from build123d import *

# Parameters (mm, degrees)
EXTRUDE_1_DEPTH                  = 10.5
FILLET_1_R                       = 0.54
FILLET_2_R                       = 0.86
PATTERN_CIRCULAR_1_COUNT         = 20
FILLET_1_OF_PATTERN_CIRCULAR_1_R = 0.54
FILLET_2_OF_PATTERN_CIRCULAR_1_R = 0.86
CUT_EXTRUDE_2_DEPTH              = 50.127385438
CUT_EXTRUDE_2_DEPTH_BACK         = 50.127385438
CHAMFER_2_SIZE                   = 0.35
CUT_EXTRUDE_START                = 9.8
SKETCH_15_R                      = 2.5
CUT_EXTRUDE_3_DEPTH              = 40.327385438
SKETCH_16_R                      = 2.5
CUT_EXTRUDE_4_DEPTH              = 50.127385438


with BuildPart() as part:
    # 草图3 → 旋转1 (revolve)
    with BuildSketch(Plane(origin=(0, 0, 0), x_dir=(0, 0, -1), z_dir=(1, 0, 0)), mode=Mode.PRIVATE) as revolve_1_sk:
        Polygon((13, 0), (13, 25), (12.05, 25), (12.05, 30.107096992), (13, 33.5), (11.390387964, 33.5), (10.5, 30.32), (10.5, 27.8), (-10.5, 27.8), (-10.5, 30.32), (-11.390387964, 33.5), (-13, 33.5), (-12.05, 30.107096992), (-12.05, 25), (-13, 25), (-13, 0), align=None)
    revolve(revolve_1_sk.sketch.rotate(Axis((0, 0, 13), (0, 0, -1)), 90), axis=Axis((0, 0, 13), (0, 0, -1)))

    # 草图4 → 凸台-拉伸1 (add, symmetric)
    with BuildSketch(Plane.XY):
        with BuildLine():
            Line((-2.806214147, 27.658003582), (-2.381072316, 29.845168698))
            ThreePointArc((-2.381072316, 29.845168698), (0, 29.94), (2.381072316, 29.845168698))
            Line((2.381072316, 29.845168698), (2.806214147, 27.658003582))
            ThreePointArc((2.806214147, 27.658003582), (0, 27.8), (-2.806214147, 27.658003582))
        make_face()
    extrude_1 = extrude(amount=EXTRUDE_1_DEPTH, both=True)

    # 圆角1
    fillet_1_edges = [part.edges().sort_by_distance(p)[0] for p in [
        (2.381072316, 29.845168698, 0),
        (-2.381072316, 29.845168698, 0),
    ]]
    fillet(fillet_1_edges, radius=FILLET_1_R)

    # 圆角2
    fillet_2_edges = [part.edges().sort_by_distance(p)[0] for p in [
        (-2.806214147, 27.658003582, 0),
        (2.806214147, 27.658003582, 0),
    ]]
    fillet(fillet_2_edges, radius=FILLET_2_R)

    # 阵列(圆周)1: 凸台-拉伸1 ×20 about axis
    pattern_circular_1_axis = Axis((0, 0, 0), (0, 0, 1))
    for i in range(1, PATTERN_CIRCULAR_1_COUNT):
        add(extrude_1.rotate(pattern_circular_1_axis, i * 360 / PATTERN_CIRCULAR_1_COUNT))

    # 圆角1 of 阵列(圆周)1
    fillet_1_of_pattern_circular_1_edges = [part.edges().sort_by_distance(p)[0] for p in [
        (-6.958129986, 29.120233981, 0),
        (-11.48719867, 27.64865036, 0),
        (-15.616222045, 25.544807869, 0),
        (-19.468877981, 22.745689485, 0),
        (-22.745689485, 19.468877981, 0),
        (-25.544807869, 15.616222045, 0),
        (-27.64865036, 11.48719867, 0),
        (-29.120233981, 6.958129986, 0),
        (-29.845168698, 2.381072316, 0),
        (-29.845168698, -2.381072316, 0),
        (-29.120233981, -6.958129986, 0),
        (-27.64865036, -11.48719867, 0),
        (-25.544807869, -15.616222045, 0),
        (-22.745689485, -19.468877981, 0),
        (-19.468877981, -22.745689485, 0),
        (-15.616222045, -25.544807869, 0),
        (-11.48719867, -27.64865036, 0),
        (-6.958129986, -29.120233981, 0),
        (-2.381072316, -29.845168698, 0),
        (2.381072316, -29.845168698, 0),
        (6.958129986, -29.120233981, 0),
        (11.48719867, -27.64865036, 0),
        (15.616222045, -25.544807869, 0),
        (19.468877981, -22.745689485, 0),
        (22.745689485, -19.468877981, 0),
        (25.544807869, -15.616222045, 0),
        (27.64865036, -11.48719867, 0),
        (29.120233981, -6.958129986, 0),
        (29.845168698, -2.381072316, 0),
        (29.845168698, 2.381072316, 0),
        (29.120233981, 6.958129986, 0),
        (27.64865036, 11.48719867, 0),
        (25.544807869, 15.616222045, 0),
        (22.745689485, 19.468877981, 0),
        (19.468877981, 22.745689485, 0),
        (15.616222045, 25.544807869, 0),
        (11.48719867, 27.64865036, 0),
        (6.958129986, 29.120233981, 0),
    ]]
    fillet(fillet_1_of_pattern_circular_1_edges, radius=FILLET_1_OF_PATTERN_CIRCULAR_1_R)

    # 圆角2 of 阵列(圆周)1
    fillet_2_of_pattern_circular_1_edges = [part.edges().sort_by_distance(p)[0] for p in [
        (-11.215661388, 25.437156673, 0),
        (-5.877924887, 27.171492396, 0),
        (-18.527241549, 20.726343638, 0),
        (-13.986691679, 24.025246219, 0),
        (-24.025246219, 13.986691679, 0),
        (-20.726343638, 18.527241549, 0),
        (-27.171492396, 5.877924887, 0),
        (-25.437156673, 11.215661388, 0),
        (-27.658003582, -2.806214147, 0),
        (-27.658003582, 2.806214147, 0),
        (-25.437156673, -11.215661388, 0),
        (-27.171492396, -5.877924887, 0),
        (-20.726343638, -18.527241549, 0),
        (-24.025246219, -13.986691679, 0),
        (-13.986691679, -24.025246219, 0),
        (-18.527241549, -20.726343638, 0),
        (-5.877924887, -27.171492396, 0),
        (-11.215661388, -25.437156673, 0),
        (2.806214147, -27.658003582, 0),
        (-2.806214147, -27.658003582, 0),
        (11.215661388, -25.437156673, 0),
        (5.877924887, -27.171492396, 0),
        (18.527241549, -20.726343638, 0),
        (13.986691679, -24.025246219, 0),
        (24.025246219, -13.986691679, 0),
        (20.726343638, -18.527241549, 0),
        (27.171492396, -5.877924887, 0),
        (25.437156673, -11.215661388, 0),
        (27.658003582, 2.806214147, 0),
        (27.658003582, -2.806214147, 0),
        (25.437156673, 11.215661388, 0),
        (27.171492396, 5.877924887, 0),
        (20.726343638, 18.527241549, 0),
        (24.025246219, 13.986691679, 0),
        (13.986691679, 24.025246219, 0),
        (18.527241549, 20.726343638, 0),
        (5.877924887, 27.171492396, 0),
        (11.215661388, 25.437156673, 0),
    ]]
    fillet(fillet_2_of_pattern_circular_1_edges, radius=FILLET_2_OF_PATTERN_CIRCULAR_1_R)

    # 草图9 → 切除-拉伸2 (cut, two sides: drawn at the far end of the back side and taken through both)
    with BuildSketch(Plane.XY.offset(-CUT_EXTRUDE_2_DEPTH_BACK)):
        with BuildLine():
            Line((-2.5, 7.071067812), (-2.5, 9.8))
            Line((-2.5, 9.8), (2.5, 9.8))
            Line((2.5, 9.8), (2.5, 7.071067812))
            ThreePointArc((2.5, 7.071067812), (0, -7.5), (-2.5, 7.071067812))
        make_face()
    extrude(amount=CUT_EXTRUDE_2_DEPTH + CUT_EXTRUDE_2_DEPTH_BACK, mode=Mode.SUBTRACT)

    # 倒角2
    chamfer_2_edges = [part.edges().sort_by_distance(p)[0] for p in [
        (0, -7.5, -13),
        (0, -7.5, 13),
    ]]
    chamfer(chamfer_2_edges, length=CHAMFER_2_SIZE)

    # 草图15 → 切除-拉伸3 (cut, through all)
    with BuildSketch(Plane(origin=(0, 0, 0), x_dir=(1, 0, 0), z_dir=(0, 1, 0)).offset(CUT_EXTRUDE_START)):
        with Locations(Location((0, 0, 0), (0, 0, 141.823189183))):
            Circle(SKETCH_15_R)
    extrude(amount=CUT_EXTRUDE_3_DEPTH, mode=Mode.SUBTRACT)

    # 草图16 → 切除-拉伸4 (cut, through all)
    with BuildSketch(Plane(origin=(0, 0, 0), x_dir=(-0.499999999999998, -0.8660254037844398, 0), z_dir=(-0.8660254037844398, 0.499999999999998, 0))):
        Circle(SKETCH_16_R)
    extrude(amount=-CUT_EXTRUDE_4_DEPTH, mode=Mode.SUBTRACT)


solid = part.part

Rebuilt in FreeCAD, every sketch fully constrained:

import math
import FreeCAD as App
import Part
import Sketcher
Q = App.Units.Quantity


def edges_at(feature, points):
    """Names of the edges that pass closest to the given points."""
    edges = feature.Shape.Edges
    near = lambda p: min(range(len(edges)), key=lambda i: edges[i].distToShape(Part.Vertex(*p))[0])
    return sorted({f"Edge{near(p) + 1}" for p in points})


def add_polygon(sketch, points):
    """Adds a closed chain of lines whose ends are joined by coincident constraints."""
    first, n = sketch.GeometryCount, len(points)
    for a, b in zip(points, points[1:] + points[:1]):
        sketch.addGeometry(Part.LineSegment(App.Vector(*a, 0), App.Vector(*b, 0)), False)
    for i in range(n):
        sketch.addConstraint(Sketcher.Constraint("Coincident", first + i, 2, first + (i + 1) % n, 1))

doc = App.newDocument("Part")
body = doc.addObject("PartDesign::Body", "Body")

# Sketch on YZ plane
sketch1 = body.newObject("Sketcher::SketchObject", "Sketch")
sketch1.AttachmentSupport = (doc.getObject("YZ_Plane"), [""])
sketch1.MapMode = "FlatFace"
add_polygon(sketch1, [(0, -13), (25, -13), (25, -12.1), (30.1, -12.1), (33.5, -13), (33.5, -11.4), (30.3, -10.5), (27.8, -10.5), (27.8, 10.5), (30.3, 10.5), (33.5, 11.4), (33.5, 13), (30.1, 12.1), (25, 12.1), (25, 13), (0, 13)])  # lines 0-15
sketch1.addConstraint([
    Sketcher.Constraint("Horizontal", 0),
    Sketcher.Constraint("Vertical", 1),
    Sketcher.Constraint("Horizontal", 2),
    Sketcher.Constraint("Vertical", 4),
    Sketcher.Constraint("Horizontal", 6),
    Sketcher.Constraint("Vertical", 7),
    Sketcher.Constraint("Horizontal", 8),
    Sketcher.Constraint("Vertical", 10),
    Sketcher.Constraint("Horizontal", 12),
    Sketcher.Constraint("Vertical", 13),
    Sketcher.Constraint("Horizontal", 14),
    Sketcher.Constraint("Vertical", 15),
    Sketcher.Constraint("Symmetric", 14, 2, 15, 2, -1, 1),
    Sketcher.Constraint("Symmetric", 5, 2, 8, 2, -1),
    Sketcher.Constraint("Symmetric", 4, 2, 9, 2, -1),
    Sketcher.Constraint("Symmetric", 2, 2, 11, 2, -1),
    Sketcher.Constraint("Parallel", 3, 5),
    Sketcher.Constraint("Parallel", 9, 11),
    Sketcher.Constraint("Horizontal", 0, 2, 3, 2),
    Sketcher.Constraint("Vertical", 1, 2, 12, 2),
    Sketcher.Constraint("DistanceX", 0, 1, 0, 2, 25.0),
    Sketcher.Constraint("DistanceY", 7, 1, 7, 2, 21.0),
    Sketcher.Constraint("DistanceY", 15, 2, 15, 1, 26.0),
    Sketcher.Constraint("DistanceX", 6, 2, 6, 1, 2.52),
    Sketcher.Constraint("DistanceY", 1, 1, 1, 2, 0.95),
    Sketcher.Constraint("DistanceX", -1, 1, 3, 2, 33.5),
    Sketcher.Constraint("DistanceX", -1, 1, 6, 2, 27.8),
    Sketcher.Constraint("Distance", 5, 3.302301),
])
revolution = body.newObject("PartDesign::Revolution", "Revolution")
revolution.Profile = sketch1
revolution.ReferenceAxis = (sketch1, ["V_Axis"])
revolution.Angle = 360

# Sketch on XY plane
sketch2 = body.newObject("Sketcher::SketchObject", "Sketch001")
sketch2.AttachmentSupport = (doc.getObject("XY_Plane"), [""])
sketch2.MapMode = "FlatFace"
sketch2.addGeometry([
    Part.LineSegment(App.Vector(-2.4, 29.8, 0), App.Vector(-2.8, 27.7, 0)),
    Part.ArcOfCircle(Part.Circle(App.Vector(0, 0, 0), App.Vector(0, 0, 1), 27.8), math.radians(84.21), math.radians(95.79)),
    Part.LineSegment(App.Vector(2.8, 27.7, 0), App.Vector(2.4, 29.8, 0)),
    Part.ArcOfCircle(Part.Circle(App.Vector(0, 0, 0), App.Vector(0, 0, 1), 29.9), math.radians(85.44), math.radians(94.56)),
], False)
sketch2.addConstraint([
    Sketcher.Constraint("Coincident", 0, 2, 1, 2),
    Sketcher.Constraint("Coincident", 1, 1, 2, 1),
    Sketcher.Constraint("Coincident", 2, 2, 3, 1),
    Sketcher.Constraint("Coincident", 3, 2, 0, 1),
    Sketcher.Constraint("Coincident", 1, 3, -1, 1),
    Sketcher.Constraint("Coincident", 3, 3, -1, 1),
    Sketcher.Constraint("Horizontal", 0, 2, 1, 1),
    Sketcher.Constraint("Horizontal", 2, 2, 3, 2),
    Sketcher.Constraint("Radius", 1, 27.8),
    Sketcher.Constraint("Angle", 0, Q("-101 deg")),
    Sketcher.Constraint("Radius", 3, 29.94),
    Sketcher.Constraint("Distance", 0, 2.228102),
])
pad1 = body.newObject("PartDesign::Pad", "Pad")
pad1.Profile = sketch2
pad1.Length = 21
pad1.Midplane = True
doc.recompute()

fillet = body.newObject("PartDesign::Fillet", "Fillet")
fillet.Base = (pad1, edges_at(pad1, [(2.381, 29.845, 0), (-2.381, 29.845, 0)]))
fillet.Radius = 0.54
doc.recompute()

fillet2 = body.newObject("PartDesign::Fillet", "Fillet001")
fillet2.Base = (fillet, edges_at(fillet, [(-2.806, 27.658, 0), (2.806, 27.658, 0)]))
fillet2.Radius = 0.86
doc.recompute()

polarpattern = body.newObject("PartDesign::PolarPattern", "PolarPattern")
polarpattern.Originals = [pad1]
polarpattern.Axis = (doc.getObject("Z_Axis"), [""])
polarpattern.Angle = 360
polarpattern.Occurrences = 20
body.Tip = polarpattern
doc.recompute()

fillet3 = body.newObject("PartDesign::Fillet", "Fillet002")
fillet3.Base = (polarpattern, edges_at(polarpattern, [
    (-6.958, 29.12, 0),
    (-11.487, 27.649, 0),
    (-15.616, 25.545, 0),
    (-19.469, 22.746, 0),
    (-22.746, 19.469, 0),
    (-25.545, 15.616, 0),
    (-27.649, 11.487, 0),
    (-29.12, 6.958, 0),
    (-29.845, 2.381, 0),
    (-29.845, -2.381, 0),
    (-29.12, -6.958, 0),
    (-27.649, -11.487, 0),
    (-25.545, -15.616, 0),
    (-22.746, -19.469, 0),
    (-19.469, -22.746, 0),
    (-15.616, -25.545, 0),
    (-11.487, -27.649, 0),
    (-6.958, -29.12, 0),
    (-2.381, -29.845, 0),
    (2.381, -29.845, 0),
    (6.958, -29.12, 0),
    (11.487, -27.649, 0),
    (15.616, -25.545, 0),
    (19.469, -22.746, 0),
    (22.746, -19.469, 0),
    (25.545, -15.616, 0),
    (27.649, -11.487, 0),
    (29.12, -6.958, 0),
    (29.845, -2.381, 0),
    (29.845, 2.381, 0),
    (29.12, 6.958, 0),
    (27.649, 11.487, 0),
    (25.545, 15.616, 0),
    (22.746, 19.469, 0),
    (19.469, 22.746, 0),
    (15.616, 25.545, 0),
    (11.487, 27.649, 0),
    (6.958, 29.12, 0),
]))
fillet3.Radius = 0.54
doc.recompute()

fillet4 = body.newObject("PartDesign::Fillet", "Fillet003")
fillet4.Base = (fillet3, edges_at(fillet3, [
    (-11.216, 25.437, 0),
    (-5.878, 27.171, 0),
    (-18.527, 20.726, 0),
    (-13.987, 24.025, 0),
    (-24.025, 13.987, 0),
    (-20.726, 18.527, 0),
    (-27.171, 5.878, 0),
    (-25.437, 11.216, 0),
    (-27.658, -2.806, 0),
    (-27.658, 2.806, 0),
    (-25.437, -11.216, 0),
    (-27.171, -5.878, 0),
    (-20.726, -18.527, 0),
    (-24.025, -13.987, 0),
    (-13.987, -24.025, 0),
    (-18.527, -20.726, 0),
    (-5.878, -27.171, 0),
    (-11.216, -25.437, 0),
    (2.806, -27.658, 0),
    (-2.806, -27.658, 0),
    (11.216, -25.437, 0),
    (5.878, -27.171, 0),
    (18.527, -20.726, 0),
    (13.987, -24.025, 0),
    (24.025, -13.987, 0),
    (20.726, -18.527, 0),
    (27.171, -5.878, 0),
    (25.437, -11.216, 0),
    (27.658, 2.806, 0),
    (27.658, -2.806, 0),
    (25.437, 11.216, 0),
    (27.171, 5.878, 0),
    (20.726, 18.527, 0),
    (24.025, 13.987, 0),
    (13.987, 24.025, 0),
    (18.527, 20.726, 0),
    (5.878, 27.171, 0),
    (11.216, 25.437, 0),
]))
fillet4.Radius = 0.86

# Sketch on XY plane
sketch3 = body.newObject("Sketcher::SketchObject", "Sketch002")
sketch3.AttachmentSupport = (doc.getObject("XY_Plane"), [""])
sketch3.MapMode = "FlatFace"
sketch3.addGeometry([
    Part.LineSegment(App.Vector(-2.5, 9.8, 0), App.Vector(-2.5, 7.1, 0)),
    Part.ArcOfCircle(Part.Circle(App.Vector(0, 0, 0), App.Vector(0, 0, 1), 7.5), math.radians(109), math.radians(431)),
    Part.LineSegment(App.Vector(2.5, 7.1, 0), App.Vector(2.5, 9.8, 0)),
    Part.LineSegment(App.Vector(2.5, 9.8, 0), App.Vector(-2.5, 9.8, 0)),
], False)
sketch3.addConstraint([
    Sketcher.Constraint("Coincident", 0, 2, 1, 1),
    Sketcher.Constraint("Coincident", 1, 2, 2, 1),
    Sketcher.Constraint("Coincident", 2, 2, 3, 1),
    Sketcher.Constraint("Coincident", 3, 2, 0, 1),
    Sketcher.Constraint("Vertical", 0),
    Sketcher.Constraint("Vertical", 2),
    Sketcher.Constraint("Horizontal", 3),
    Sketcher.Constraint("Coincident", 1, 3, -1, 1),
    Sketcher.Constraint("Horizontal", 0, 2, 1, 2),
    Sketcher.Constraint("Radius", 1, 7.5),
    Sketcher.Constraint("DistanceX", 3, 2, 3, 1, 5.0),
    Sketcher.Constraint("DistanceY", -1, 1, 2, 2, 9.8),
])
pocket1 = body.newObject("PartDesign::Pocket", "Pocket")
pocket1.Profile = sketch3
pocket1.Type = "ThroughAll"
pocket1.Midplane = True
doc.recompute()

chamfer = body.newObject("PartDesign::Chamfer", "Chamfer")
chamfer.Base = (pocket1, edges_at(pocket1, [(0, -7.5, -13), (0, -7.5, 13)]))
chamfer.Size = 0.35

# Sketch on XZ plane
sketch4 = body.newObject("Sketcher::SketchObject", "Sketch003")
sketch4.AttachmentSupport = (doc.getObject("XZ_Plane"), [""])
sketch4.MapMode = "FlatFace"
sketch4.AttachmentOffset = App.Placement(App.Vector(0, 0, -9.8), App.Rotation())
sketch4.addGeometry(Part.Circle(App.Vector(0, 0, 0), App.Vector(0, 0, 1), 2.5), False)
sketch4.addConstraint([
    Sketcher.Constraint("Coincident", 0, 3, -1, 1),
    Sketcher.Constraint("Diameter", 0, 5.0),
])
pocket2 = body.newObject("PartDesign::Pocket", "Pocket001")
pocket2.Profile = sketch4
pocket2.Type = "ThroughAll"

# Sketch on an angled plane
sketch5 = body.newObject("Sketcher::SketchObject", "Sketch004")
sketch5.Placement = App.Placement(App.Vector(0, 0, 0), App.Rotation(App.Vector(-0.5, -0.866025404, 0), App.Vector(0, 0, 1), App.Vector(-0.866025404, 0.5, 0), "ZXY"))
sketch5.addGeometry(Part.Circle(App.Vector(0, 0, 0), App.Vector(0, 0, 1), 2.5), False)
sketch5.addConstraint([
    Sketcher.Constraint("Coincident", 0, 3, -1, 1),
    Sketcher.Constraint("Diameter", 0, 5.0),
])
pocket3 = body.newObject("PartDesign::Pocket", "Pocket002")
pocket3.Profile = sketch5
pocket3.Type = "ThroughAll"

doc.recompute()
